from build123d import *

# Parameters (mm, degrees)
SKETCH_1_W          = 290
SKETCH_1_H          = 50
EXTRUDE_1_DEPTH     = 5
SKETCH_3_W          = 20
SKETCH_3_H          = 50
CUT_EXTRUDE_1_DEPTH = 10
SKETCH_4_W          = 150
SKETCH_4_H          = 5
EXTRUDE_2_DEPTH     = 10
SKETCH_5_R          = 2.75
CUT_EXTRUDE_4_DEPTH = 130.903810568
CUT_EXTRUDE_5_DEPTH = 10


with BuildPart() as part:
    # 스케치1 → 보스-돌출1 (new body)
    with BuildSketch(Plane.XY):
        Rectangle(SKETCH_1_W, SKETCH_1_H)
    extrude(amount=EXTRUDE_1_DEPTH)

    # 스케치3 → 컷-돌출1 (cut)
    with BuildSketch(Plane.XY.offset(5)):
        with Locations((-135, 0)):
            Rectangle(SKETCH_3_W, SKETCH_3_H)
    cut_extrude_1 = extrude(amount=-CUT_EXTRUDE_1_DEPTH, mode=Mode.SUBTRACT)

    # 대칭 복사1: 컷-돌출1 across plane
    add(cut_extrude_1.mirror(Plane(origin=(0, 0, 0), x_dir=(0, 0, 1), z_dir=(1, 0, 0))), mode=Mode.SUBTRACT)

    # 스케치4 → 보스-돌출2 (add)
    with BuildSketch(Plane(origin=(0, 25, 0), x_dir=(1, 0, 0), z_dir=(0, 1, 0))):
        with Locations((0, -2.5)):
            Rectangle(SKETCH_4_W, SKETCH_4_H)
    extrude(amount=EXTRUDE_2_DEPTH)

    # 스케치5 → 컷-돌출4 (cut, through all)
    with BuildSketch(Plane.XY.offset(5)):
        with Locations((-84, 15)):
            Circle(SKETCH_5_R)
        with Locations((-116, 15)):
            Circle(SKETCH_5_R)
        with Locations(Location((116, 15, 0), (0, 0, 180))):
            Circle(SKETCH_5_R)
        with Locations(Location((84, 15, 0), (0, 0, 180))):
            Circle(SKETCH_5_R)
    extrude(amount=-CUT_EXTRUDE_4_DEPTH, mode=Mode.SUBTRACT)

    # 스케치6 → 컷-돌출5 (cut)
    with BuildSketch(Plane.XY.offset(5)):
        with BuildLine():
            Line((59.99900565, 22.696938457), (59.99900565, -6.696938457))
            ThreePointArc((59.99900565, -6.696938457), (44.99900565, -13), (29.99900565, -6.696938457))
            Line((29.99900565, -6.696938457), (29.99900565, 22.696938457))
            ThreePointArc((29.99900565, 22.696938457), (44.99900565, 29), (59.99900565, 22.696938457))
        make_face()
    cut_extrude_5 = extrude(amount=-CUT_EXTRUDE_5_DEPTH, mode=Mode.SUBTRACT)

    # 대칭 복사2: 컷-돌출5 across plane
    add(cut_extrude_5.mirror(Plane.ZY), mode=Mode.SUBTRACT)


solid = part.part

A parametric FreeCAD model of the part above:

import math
import FreeCAD as App
import Part
import Sketcher

V = App.Vector
Q = App.Units.Quantity


def add_polygon(sketch, points):
    """Adds a closed chain of lines whose ends are joined by coincident constraints."""
    first, n = sketch.GeometryCount, len(points)
    for a, b in zip(points, points[1:] + points[:1]):
        sketch.addGeometry(Part.LineSegment(App.Vector(*a, 0), App.Vector(*b, 0)), False)
    for i in range(n):
        sketch.addConstraint(Sketcher.Constraint("Coincident", first + i, 2, first + (i + 1) % n, 1))

doc = App.newDocument("Part")
params = doc.addObject("Spreadsheet::Sheet", "Params")
for row, (alias, value) in enumerate([
    ("sketch1_width", "290 mm"),
    ("sketch1_height", "50 mm"),
    ("pad1_length", "5 mm"),
    ("sketch2_width", "20 mm"),
    ("sketch2_height", "50 mm"),
    ("pocket1_length", "10 mm"),
    ("sketch3_width", "150 mm"),
    ("sketch3_height", "5 mm"),
    ("pad2_length", "10 mm"),
    ("sketch4_diameter", "5.5 mm"),
    ("sketch5_radius", "21 mm"),
    ("pocket3_length", "10 mm"),
], start=1):
    params.set(f"A{row}", alias)
    params.set(f"B{row}", "=" + value)
    params.setAlias(f"B{row}", alias)

body = doc.addObject("PartDesign::Body", "Body")

sketch1 = body.newObject("Sketcher::SketchObject", "Sketch")
sketch1.AttachmentSupport = (doc.getObject("XY_Plane"), [""])
sketch1.MapMode = "FlatFace"
add_polygon(sketch1, [(-145, 25), (-145, -25), (145, -25), (145, 25)])
sketch1.addConstraint(Sketcher.Constraint("Vertical", 0))
sketch1.addConstraint(Sketcher.Constraint("Horizontal", 1))
sketch1.addConstraint(Sketcher.Constraint("Vertical", 2))
sketch1.addConstraint(Sketcher.Constraint("Horizontal", 3))
sketch1.addConstraint(Sketcher.Constraint("Symmetric", 0, 2, 2, 2, -1, 1))
sketch1.addConstraint(Sketcher.Constraint("DistanceX", 1, 1, 1, 2, Q("290 mm")))
sketch1.addConstraint(Sketcher.Constraint("DistanceY", 0, 2, 0, 1, Q("50 mm")))
sketch1.setExpression("Constraints[9]", "Params.sketch1_width")
sketch1.setExpression("Constraints[10]", "Params.sketch1_height")
pad1 = body.newObject("PartDesign::Pad", "Pad")
pad1.Profile = sketch1
pad1.setExpression("Length", "Params.pad1_length")

sketch2 = body.newObject("Sketcher::SketchObject", "Sketch001")
sketch2.AttachmentSupport = (doc.getObject("XY_Plane"), [""])
sketch2.MapMode = "FlatFace"
sketch2.AttachmentOffset = App.Placement(V(0, 0, 5), App.Rotation())
add_polygon(sketch2, [(-145, 25), (-145, -25), (-125, -25), (-125, 25)])
sketch2.addConstraint(Sketcher.Constraint("Vertical", 0))
sketch2.addConstraint(Sketcher.Constraint("Horizontal", 1))
sketch2.addConstraint(Sketcher.Constraint("Vertical", 2))
sketch2.addConstraint(Sketcher.Constraint("Horizontal", 3))
sketch2.addConstraint(Sketcher.Constraint("DistanceX", 1, 1, 1, 2, Q("20 mm")))
sketch2.addConstraint(Sketcher.Constraint("DistanceY", 0, 2, 0, 1, Q("50 mm")))
sketch2.addConstraint(Sketcher.Constraint("DistanceX", 0, 2, -1, 1, Q("145 mm")))
sketch2.addConstraint(Sketcher.Constraint("DistanceY", 0, 2, -1, 1, Q("25 mm")))
sketch2.setExpression("Constraints[8]", "Params.sketch2_width")
sketch2.setExpression("Constraints[9]", "Params.sketch2_height")
pocket1 = body.newObject("PartDesign::Pocket", "Pocket")
pocket1.Profile = sketch2
pocket1.setExpression("Length", "Params.pocket1_length")
doc.recompute()

mirrored = body.newObject("PartDesign::Mirrored", "Mirrored")
mirrored.Originals = [pocket1]
mirrored.MirrorPlane = (doc.getObject("YZ_Plane"), [""])
body.Tip = mirrored

sketch3 = body.newObject("Sketcher::SketchObject", "Sketch002")
sketch3.AttachmentSupport = (doc.getObject("XZ_Plane"), [""])
sketch3.MapMode = "FlatFace"
sketch3.AttachmentOffset = App.Placement(V(0, 0, -25), App.Rotation())
add_polygon(sketch3, [(-75, 0), (-75, 5), (75, 5), (75, 0)])
sketch3.addConstraint(Sketcher.Constraint("Vertical", 0))
sketch3.addConstraint(Sketcher.Constraint("Horizontal", 1))
sketch3.addConstraint(Sketcher.Constraint("Vertical", 2))
sketch3.addConstraint(Sketcher.Constraint("Horizontal", 3))
sketch3.addConstraint(Sketcher.Constraint("Symmetric", 2, 2, 3, 2, -1, 1))
sketch3.addConstraint(Sketcher.Constraint("DistanceX", 1, 1, 1, 2, Q("150 mm")))
sketch3.addConstraint(Sketcher.Constraint("DistanceY", 0, 1, 0, 2, Q("5 mm")))
sketch3.setExpression("Constraints[9]", "Params.sketch3_width")
sketch3.setExpression("Constraints[10]", "Params.sketch3_height")
pad2 = body.newObject("PartDesign::Pad", "Pad001")
pad2.Profile = sketch3
pad2.setExpression("Length", "Params.pad2_length")
pad2.Reversed = True

sketch4 = body.newObject("Sketcher::SketchObject", "Sketch003")
sketch4.AttachmentSupport = (doc.getObject("XY_Plane"), [""])
sketch4.MapMode = "FlatFace"
sketch4.AttachmentOffset = App.Placement(V(0, 0, 5), App.Rotation())
sketch4.addGeometry(Part.Circle(V(-84, 15, 0), V(0, 0, 1), 2.8), False)
sketch4.addGeometry(Part.Circle(V(-116, 15, 0), V(0, 0, 1), 2.8), False)
sketch4.addGeometry(Part.Circle(V(116, 15, 0), V(0, 0, 1), 2.8), False)
sketch4.addGeometry(Part.Circle(V(84, 15, 0), V(0, 0, 1), 2.8), False)
sketch4.addConstraint(Sketcher.Constraint("Equal", 0, 1))
sketch4.addConstraint(Sketcher.Constraint("Equal", 1, 2))
sketch4.addConstraint(Sketcher.Constraint("Equal", 2, 3))
sketch4.addConstraint(Sketcher.Constraint("Symmetric", 1, 3, 2, 3, -2))
sketch4.addConstraint(Sketcher.Constraint("Symmetric", 0, 3, 3, 3, -2))
sketch4.addConstraint(Sketcher.Constraint("Horizontal", 0, 3, 1, 3))
sketch4.addConstraint(Sketcher.Constraint("Diameter", 0, Q("5.5 mm")))
sketch4.addConstraint(Sketcher.Constraint("DistanceX", 0, 3, -1, 1, Q("84 mm")))
sketch4.addConstraint(Sketcher.Constraint("DistanceY", -1, 1, 0, 3, Q("15 mm")))
sketch4.addConstraint(Sketcher.Constraint("DistanceX", 1, 3, -1, 1, Q("116 mm")))
sketch4.setExpression("Constraints[6]", "Params.sketch4_diameter")
pocket2 = body.newObject("PartDesign::Pocket", "Pocket001")
pocket2.Profile = sketch4
pocket2.Type = "ThroughAll"

sketch5 = body.newObject("Sketcher::SketchObject", "Sketch004")
sketch5.AttachmentSupport = (doc.getObject("XY_Plane"), [""])
sketch5.MapMode = "FlatFace"
sketch5.AttachmentOffset = App.Placement(V(0, 0, 5), App.Rotation())
sketch5.addGeometry(Part.LineSegment(V(60, -7, 0), V(60, 23, 0)), False)
sketch5.addGeometry(Part.ArcOfCircle(Part.Circle(V(45, 8, 0), V(0, 0, 1), 21), math.radians(44), math.radians(136)), False)
sketch5.addGeometry(Part.LineSegment(V(30, 23, 0), V(30, -7, 0)), False)
sketch5.addGeometry(Part.ArcOfCircle(Part.Circle(V(45, 8, 0), V(0, 0, 1), 21), math.radians(-136), math.radians(-44)), False)
sketch5.addConstraint(Sketcher.Constraint("Coincident", 0, 2, 1, 1))
sketch5.addConstraint(Sketcher.Constraint("Coincident", 1, 2, 2, 1))
sketch5.addConstraint(Sketcher.Constraint("Coincident", 2, 2, 3, 1))
sketch5.addConstraint(Sketcher.Constraint("Coincident", 3, 2, 0, 1))
sketch5.addConstraint(Sketcher.Constraint("Vertical", 0))
sketch5.addConstraint(Sketcher.Constraint("Vertical", 2))
sketch5.addConstraint(Sketcher.Constraint("Coincident", 3, 3, 1, 3))
sketch5.addConstraint(Sketcher.Constraint("Equal", 1, 3))
sketch5.addConstraint(Sketcher.Constraint("Horizontal", 0, 2, 1, 2))
sketch5.addConstraint(Sketcher.Constraint("Radius", 1, Q("21 mm")))
sketch5.addConstraint(Sketcher.Constraint("DistanceY", -1, 1, 1, 3, Q("8 mm")))
sketch5.addConstraint(Sketcher.Constraint("DistanceX", 3, 3, 0, 2, Q("15 mm")))
sketch5.addConstraint(Sketcher.Constraint("DistanceX", -1, 1, 1, 3, Q("44.999006 mm")))
sketch5.setExpression("Constraints[9]", "Params.sketch5_radius")
pocket3 = body.newObject("PartDesign::Pocket", "Pocket002")
pocket3.Profile = sketch5
pocket3.setExpression("Length", "Params.pocket3_length")
doc.recompute()

mirrored2 = body.newObject("PartDesign::Mirrored", "Mirrored001")
mirrored2.Originals = [pocket3]
mirrored2.MirrorPlane = (doc.getObject("YZ_Plane"), [""])
body.Tip = mirrored2

doc.recompute()
